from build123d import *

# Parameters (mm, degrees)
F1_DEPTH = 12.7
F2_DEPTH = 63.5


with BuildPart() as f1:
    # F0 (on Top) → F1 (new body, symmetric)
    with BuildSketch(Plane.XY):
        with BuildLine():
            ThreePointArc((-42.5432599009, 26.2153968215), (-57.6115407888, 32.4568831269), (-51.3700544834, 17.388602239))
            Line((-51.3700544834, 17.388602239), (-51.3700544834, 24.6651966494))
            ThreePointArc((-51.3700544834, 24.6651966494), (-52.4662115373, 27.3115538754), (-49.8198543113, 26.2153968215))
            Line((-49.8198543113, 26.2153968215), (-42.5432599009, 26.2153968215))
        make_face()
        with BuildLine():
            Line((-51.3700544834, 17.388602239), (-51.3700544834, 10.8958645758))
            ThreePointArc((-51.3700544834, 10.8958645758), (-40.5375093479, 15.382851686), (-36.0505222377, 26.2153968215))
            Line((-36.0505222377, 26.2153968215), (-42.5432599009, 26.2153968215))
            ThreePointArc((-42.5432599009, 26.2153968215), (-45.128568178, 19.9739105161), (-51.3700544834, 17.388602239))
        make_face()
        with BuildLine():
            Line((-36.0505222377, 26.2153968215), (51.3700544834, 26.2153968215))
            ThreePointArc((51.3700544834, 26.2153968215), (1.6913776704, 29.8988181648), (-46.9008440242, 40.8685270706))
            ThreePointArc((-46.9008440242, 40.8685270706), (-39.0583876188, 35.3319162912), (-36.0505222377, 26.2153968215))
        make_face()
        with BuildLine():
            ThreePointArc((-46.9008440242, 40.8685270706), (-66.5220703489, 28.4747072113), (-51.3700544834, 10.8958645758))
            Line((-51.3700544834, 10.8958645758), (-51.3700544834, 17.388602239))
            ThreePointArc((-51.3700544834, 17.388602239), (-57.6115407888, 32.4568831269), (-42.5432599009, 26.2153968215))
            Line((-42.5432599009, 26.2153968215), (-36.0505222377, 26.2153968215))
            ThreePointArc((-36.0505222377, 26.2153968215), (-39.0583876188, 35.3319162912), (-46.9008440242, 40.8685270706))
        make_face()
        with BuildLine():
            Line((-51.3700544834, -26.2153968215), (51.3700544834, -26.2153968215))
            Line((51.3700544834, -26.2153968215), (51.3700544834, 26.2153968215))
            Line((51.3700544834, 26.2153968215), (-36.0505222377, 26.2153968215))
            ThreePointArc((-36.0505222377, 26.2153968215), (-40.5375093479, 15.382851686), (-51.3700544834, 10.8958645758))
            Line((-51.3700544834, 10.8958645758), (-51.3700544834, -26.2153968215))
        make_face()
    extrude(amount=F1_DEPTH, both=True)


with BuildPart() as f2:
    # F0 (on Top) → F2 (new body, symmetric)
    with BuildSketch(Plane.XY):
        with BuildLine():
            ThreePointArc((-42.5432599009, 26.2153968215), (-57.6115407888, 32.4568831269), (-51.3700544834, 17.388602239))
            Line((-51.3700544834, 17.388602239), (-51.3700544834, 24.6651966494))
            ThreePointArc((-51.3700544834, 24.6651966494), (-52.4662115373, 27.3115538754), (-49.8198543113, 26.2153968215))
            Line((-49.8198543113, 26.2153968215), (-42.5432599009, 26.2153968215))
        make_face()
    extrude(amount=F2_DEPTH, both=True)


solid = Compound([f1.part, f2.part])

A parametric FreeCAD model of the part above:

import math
import FreeCAD as App
import Part
import Sketcher
Q = App.Units.Quantity

doc = App.newDocument("Part")
body = doc.addObject("PartDesign::Body", "Body")

# Sketch on XY plane
sketch1 = body.newObject("Sketcher::SketchObject", "Sketch")
sketch1.AttachmentSupport = (doc.getObject("XY_Plane"), [""])
sketch1.MapMode = "FlatFace"
sketch1.addGeometry([
    Part.ArcOfCircle(Part.Circle(App.Vector(-51.370054, 26.215397, 0), App.Vector(0, 0, 1), 15.319532), math.radians(73.038274), math.radians(270)),  # 0
    Part.LineSegment(App.Vector(-51.370054, 10.895865, 0), App.Vector(-51.370054, -26.215397, 0)),  # 1
    Part.LineSegment(App.Vector(-51.370054, -26.215397, 0), App.Vector(51.370054, -26.215397, 0)),  # 2
    Part.LineSegment(App.Vector(51.370054, -26.215397, 0), App.Vector(51.370054, 26.215397, 0)),  # 3
    Part.ArcOfCircle(Part.Circle(App.Vector(51.370054, 363.067781, 0), App.Vector(0, 0, 1), 336.852384), math.radians(-106.961726), math.radians(-90)),  # 4
    Part.LineSegment(App.Vector(-51.370054, 17.388602, 0), App.Vector(-51.370054, 24.665197, 0)),  # 5
    Part.ArcOfCircle(Part.Circle(App.Vector(-51.370054, 26.215397, 0), App.Vector(0, 0, 1), 1.5502), math.radians(0), math.radians(270)),  # 6
    Part.LineSegment(App.Vector(-49.819854, 26.215397, 0), App.Vector(-42.54326, 26.215397, 0)),  # 7
    Part.ArcOfCircle(Part.Circle(App.Vector(-51.370054, 26.215397, 0), App.Vector(0, 0, 1), 8.826795), math.radians(-90), math.radians(0)),  # 8
], False)
sketch1.addConstraint([
    Sketcher.Constraint("Coincident", 0, 2, 1, 1),
    Sketcher.Constraint("Coincident", 1, 2, 2, 1),
    Sketcher.Constraint("Coincident", 2, 2, 3, 1),
    Sketcher.Constraint("Coincident", 3, 2, 4, 2),
    Sketcher.Constraint("Tangent", 4, 1, 0, 1),
    Sketcher.Constraint("Coincident", 5, 2, 6, 2),
    Sketcher.Constraint("Coincident", 6, 1, 7, 1),
    Sketcher.Constraint("Coincident", 7, 2, 8, 2),
    Sketcher.Constraint("Coincident", 8, 1, 5, 1),
    Sketcher.Constraint("Vertical", 1),
    Sketcher.Constraint("Horizontal", 2),
    Sketcher.Constraint("Vertical", 3),
    Sketcher.Constraint("Vertical", 5),
    Sketcher.Constraint("Horizontal", 7),
    Sketcher.Constraint("Coincident", 6, 3, 0, 3),
    Sketcher.Constraint("Coincident", 8, 3, 0, 3),
    Sketcher.Constraint("Symmetric", 1, 2, 3, 2, -1, 1),
    Sketcher.Constraint("Horizontal", 8, 3, 3, 2),
    Sketcher.Constraint("Horizontal", 3, 2, 6, 1),
    Sketcher.Constraint("Vertical", 8, 3, 0, 2),
    Sketcher.Constraint("Vertical", 4, 3, 2, 2),
    Sketcher.Constraint("Vertical", 1, 2, 5, 2),
    Sketcher.Constraint("Radius", 6, Q("1.5502 mm")),
    Sketcher.Constraint("Radius", 0, Q("15.319532 mm")),
    Sketcher.Constraint("Radius", 4, Q("336.852384 mm")),
    Sketcher.Constraint("Radius", 8, Q("8.826795 mm")),
    Sketcher.Constraint("DistanceY", 1, 2, 1, 1, Q("37.111261 mm")),
])
pad1 = body.newObject("PartDesign::Pad", "Pad")
pad1.Profile = sketch1
pad1.Length = Q("1 in")
pad1.Midplane = True
body2 = doc.addObject("PartDesign::Body", "Body001")

# Sketch on XY plane
sketch2 = body2.newObject("Sketcher::SketchObject", "Sketch001")
sketch2.AttachmentSupport = (doc.getObject("XY_Plane001"), [""])
sketch2.MapMode = "FlatFace"
sketch2.addGeometry([
    Part.ArcOfCircle(Part.Circle(App.Vector(-51.370054, 26.215397, 0), App.Vector(0, 0, 1), 8.826795), math.radians(0), math.radians(270)),
    Part.LineSegment(App.Vector(-51.370054, 17.388602, 0), App.Vector(-51.370054, 24.665197, 0)),
    Part.ArcOfCircle(Part.Circle(App.Vector(-51.370054, 26.215397, 0), App.Vector(0, 0, 1), 1.5502), math.radians(0), math.radians(270)),
    Part.LineSegment(App.Vector(-49.819854, 26.215397, 0), App.Vector(-42.54326, 26.215397, 0)),
], False)
sketch2.addConstraint([
    Sketcher.Constraint("Coincident", 0, 2, 1, 1),
    Sketcher.Constraint("Coincident", 1, 2, 2, 2),
    Sketcher.Constraint("Coincident", 2, 1, 3, 1),
    Sketcher.Constraint("Coincident", 3, 2, 0, 1),
    Sketcher.Constraint("Vertical", 1),
    Sketcher.Constraint("Horizontal", 3),
    Sketcher.Constraint("Coincident", 2, 3, 0, 3),
    Sketcher.Constraint("Horizontal", 0, 3, 2, 1),
    Sketcher.Constraint("Vertical", 2, 3, 0, 2),
    Sketcher.Constraint("Radius", 2, Q("1.5502 mm")),
    Sketcher.Constraint("Radius", 0, Q("8.826795 mm")),
    Sketcher.Constraint("DistanceX", 3, 2, -1, 1, Q("42.54326 mm")),
    Sketcher.Constraint("DistanceY", -1, 1, 0, 3, Q("26.215397 mm")),
])
pad2 = body2.newObject("PartDesign::Pad", "Pad001")
pad2.Profile = sketch2
pad2.Length = Q("5 in")
pad2.Midplane = True

doc.recompute()
